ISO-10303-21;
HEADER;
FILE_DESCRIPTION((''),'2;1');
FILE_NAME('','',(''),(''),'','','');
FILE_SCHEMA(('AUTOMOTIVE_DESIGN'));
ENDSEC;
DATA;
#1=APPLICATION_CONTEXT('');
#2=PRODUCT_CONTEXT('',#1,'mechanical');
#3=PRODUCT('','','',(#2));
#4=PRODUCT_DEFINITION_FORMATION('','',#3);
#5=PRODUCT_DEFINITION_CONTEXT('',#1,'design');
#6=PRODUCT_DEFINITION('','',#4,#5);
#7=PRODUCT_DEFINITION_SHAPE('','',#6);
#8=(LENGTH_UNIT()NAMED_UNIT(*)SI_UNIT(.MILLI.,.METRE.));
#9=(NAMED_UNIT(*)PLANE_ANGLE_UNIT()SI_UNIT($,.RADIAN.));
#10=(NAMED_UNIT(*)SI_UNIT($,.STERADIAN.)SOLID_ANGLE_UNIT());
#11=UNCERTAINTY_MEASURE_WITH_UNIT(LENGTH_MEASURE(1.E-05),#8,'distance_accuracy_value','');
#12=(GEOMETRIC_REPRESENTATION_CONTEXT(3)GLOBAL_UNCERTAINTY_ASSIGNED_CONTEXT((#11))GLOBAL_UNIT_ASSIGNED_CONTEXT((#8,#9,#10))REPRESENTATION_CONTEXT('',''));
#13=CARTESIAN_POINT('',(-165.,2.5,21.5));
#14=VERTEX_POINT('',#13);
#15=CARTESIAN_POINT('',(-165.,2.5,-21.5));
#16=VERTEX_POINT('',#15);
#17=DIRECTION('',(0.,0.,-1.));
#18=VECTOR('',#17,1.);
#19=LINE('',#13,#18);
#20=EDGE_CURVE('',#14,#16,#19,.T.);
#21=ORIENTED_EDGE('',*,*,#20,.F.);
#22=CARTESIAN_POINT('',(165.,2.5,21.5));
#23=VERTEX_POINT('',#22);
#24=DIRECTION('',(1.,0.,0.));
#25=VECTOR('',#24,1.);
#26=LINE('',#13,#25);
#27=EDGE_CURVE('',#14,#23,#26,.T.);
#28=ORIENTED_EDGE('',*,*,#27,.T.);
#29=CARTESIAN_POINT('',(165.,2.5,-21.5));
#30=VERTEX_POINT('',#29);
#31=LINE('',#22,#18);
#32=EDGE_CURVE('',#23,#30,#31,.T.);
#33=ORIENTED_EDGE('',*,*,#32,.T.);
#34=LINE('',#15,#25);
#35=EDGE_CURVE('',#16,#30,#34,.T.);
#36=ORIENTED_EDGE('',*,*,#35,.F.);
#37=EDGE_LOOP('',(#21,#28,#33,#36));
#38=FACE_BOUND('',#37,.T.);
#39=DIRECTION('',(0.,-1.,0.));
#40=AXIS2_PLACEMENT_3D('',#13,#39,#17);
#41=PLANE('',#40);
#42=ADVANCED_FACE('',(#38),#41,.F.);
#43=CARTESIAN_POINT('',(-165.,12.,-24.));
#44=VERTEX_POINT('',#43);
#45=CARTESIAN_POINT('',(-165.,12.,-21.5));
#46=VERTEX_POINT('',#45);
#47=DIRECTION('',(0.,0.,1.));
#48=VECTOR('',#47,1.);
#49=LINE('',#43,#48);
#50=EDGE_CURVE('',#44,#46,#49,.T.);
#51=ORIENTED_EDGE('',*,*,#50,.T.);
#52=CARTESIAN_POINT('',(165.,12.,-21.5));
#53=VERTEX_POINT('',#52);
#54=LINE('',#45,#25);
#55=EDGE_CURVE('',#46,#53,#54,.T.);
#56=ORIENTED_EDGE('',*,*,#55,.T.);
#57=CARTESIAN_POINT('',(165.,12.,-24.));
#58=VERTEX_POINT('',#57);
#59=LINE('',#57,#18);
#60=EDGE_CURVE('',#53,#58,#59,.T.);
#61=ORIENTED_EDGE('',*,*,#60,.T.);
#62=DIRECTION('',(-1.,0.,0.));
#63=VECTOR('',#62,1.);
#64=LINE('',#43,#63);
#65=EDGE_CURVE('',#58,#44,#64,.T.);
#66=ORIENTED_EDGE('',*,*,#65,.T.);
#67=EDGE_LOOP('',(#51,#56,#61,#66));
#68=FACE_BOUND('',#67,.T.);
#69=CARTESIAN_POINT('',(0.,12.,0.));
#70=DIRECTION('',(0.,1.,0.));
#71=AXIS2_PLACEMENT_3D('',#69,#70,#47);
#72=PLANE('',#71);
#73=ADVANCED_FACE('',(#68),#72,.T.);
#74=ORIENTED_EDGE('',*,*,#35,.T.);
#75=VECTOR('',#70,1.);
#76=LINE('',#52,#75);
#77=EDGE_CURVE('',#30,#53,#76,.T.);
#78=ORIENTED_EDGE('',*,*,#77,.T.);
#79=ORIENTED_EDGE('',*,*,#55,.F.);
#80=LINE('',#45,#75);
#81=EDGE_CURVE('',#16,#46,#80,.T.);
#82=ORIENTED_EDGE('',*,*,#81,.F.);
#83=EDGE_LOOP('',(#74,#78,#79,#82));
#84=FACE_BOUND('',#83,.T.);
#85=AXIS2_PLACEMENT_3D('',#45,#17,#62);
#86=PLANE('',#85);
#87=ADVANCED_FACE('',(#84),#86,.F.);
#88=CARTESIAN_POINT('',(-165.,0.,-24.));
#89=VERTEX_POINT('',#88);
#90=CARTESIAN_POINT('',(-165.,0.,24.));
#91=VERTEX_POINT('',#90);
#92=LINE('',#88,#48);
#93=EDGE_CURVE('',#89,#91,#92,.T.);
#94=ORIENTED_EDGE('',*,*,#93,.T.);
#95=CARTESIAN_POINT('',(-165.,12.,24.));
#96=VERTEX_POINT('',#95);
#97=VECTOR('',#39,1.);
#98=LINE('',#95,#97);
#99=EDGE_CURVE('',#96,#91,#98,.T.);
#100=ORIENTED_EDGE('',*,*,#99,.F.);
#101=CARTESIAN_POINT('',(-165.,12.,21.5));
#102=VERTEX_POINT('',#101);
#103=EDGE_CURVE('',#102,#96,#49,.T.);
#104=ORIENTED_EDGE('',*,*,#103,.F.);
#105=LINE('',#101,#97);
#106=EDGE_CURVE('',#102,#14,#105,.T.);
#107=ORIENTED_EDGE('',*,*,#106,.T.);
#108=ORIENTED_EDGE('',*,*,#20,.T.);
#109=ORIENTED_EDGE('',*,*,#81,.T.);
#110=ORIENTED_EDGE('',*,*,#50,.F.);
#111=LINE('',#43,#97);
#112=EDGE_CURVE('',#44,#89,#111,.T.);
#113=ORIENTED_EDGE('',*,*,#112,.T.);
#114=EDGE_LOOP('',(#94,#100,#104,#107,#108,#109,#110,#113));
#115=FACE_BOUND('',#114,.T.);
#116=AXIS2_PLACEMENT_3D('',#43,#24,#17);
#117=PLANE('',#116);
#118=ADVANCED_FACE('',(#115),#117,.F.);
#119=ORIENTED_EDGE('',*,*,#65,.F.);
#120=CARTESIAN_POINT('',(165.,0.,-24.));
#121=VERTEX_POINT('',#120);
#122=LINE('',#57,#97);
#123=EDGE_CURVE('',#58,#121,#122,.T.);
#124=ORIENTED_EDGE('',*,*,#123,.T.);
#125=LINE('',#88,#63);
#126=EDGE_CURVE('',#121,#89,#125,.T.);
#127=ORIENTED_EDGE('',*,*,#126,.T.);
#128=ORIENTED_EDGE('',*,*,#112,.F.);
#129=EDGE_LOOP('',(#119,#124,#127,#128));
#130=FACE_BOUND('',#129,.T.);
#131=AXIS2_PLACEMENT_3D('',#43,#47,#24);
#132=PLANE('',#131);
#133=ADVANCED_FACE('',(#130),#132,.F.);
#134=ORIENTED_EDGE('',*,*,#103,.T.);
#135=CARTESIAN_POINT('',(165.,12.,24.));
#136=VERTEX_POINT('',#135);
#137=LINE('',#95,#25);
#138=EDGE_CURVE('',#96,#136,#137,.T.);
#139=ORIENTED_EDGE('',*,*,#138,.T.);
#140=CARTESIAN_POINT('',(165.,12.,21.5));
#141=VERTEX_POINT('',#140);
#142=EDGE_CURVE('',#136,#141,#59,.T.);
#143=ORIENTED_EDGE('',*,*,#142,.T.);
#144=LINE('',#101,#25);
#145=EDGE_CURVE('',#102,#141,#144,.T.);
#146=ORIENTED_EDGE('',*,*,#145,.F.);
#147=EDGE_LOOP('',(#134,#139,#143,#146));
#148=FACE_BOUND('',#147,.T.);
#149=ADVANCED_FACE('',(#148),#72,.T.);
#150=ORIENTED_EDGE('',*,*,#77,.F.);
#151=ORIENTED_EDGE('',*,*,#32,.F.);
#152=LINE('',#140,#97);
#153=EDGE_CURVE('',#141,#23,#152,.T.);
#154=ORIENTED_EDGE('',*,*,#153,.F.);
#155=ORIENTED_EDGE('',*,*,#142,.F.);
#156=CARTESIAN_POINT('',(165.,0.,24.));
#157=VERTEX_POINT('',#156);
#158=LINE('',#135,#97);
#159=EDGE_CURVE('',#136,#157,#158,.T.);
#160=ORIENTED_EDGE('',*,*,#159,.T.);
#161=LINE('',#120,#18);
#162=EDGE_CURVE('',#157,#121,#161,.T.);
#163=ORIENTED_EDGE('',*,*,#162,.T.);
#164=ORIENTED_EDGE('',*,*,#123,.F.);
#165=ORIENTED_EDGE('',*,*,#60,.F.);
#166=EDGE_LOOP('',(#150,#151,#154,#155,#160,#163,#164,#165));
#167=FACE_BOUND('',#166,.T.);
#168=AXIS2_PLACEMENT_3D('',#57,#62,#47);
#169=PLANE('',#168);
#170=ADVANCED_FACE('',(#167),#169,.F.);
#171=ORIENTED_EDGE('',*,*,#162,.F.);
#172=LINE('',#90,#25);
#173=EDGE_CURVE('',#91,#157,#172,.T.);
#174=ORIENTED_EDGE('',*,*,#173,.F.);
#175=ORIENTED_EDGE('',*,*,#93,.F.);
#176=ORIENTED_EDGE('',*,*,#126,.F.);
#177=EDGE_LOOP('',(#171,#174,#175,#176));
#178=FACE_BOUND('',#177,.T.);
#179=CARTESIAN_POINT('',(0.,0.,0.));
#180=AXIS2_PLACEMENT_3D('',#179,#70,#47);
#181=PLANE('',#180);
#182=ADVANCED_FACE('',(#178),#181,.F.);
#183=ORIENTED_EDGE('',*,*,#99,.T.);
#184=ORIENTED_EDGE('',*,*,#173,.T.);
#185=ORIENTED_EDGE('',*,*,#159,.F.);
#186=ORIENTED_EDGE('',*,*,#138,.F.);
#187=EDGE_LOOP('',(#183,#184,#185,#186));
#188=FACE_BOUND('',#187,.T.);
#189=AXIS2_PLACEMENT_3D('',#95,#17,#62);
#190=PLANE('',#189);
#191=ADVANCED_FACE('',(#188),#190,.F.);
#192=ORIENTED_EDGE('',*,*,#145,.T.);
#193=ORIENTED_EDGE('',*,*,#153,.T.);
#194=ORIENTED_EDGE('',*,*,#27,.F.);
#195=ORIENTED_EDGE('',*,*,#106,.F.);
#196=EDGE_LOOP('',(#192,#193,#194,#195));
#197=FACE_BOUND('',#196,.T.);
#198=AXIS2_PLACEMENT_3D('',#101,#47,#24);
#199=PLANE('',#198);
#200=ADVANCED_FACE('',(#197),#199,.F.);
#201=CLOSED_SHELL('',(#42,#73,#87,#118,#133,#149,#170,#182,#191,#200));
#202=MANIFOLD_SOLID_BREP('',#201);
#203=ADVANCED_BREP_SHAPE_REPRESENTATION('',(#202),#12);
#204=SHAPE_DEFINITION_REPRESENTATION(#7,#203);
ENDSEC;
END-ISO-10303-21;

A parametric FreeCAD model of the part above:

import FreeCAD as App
import Part
import Sketcher

V = App.Vector
Q = App.Units.Quantity


def add_polygon(sketch, points):
    """Adds a closed chain of lines whose ends are joined by coincident constraints."""
    first, n = sketch.GeometryCount, len(points)
    for a, b in zip(points, points[1:] + points[:1]):
        sketch.addGeometry(Part.LineSegment(App.Vector(*a, 0), App.Vector(*b, 0)), False)
    for i in range(n):
        sketch.addConstraint(Sketcher.Constraint("Coincident", first + i, 2, first + (i + 1) % n, 1))

doc = App.newDocument("Part")
body = doc.addObject("PartDesign::Body", "Body")

# Sketch on XZ plane
sketch1 = doc.addObject("Sketcher::SketchObject", "Sketch")
body.addObject(sketch1)
sketch1.AttachmentSupport = (doc.XZ_Plane, [""])
sketch1.MapMode = "FlatFace"
add_polygon(sketch1, [(-165, -24), (-165, 24), (165, 24), (165, -24)])  # lines 0-3
sketch1.addConstraint([
    Sketcher.Constraint("Vertical", 0),
    Sketcher.Constraint("Horizontal", 1),
    Sketcher.Constraint("Vertical", 2),
    Sketcher.Constraint("Horizontal", 3),
    Sketcher.Constraint("Symmetric", 0, 2, 2, 2, -1, 1),
    Sketcher.Constraint("DistanceX", 1, 1, 1, 2, Q("330 mm")),
    Sketcher.Constraint("DistanceY", 0, 1, 0, 2, Q("48 mm")),
])
pad1 = doc.addObject("PartDesign::Pad", "Pad")
body.addObject(pad1)
pad1.Profile = sketch1
pad1.Length = 12
pad1.Reversed = True

# Sketch on YZ plane
sketch2 = doc.addObject("Sketcher::SketchObject", "Sketch001")
body.addObject(sketch2)
sketch2.AttachmentSupport = (doc.YZ_Plane, [""])
sketch2.MapMode = "FlatFace"
add_polygon(sketch2, [(12, 21.5), (2.5, 21.5), (2.5, -21.5), (12, -21.5)])  # lines 0-3
sketch2.addConstraint([
    Sketcher.Constraint("Horizontal", 0),
    Sketcher.Constraint("Vertical", 1),
    Sketcher.Constraint("Horizontal", 2),
    Sketcher.Constraint("Vertical", 3),
    Sketcher.Constraint("DistanceY", 1, 2, 1, 1, Q("43 mm")),
    Sketcher.Constraint("DistanceX", 0, 2, 0, 1, Q("9.5 mm")),
    Sketcher.Constraint("DistanceX", -1, 1, 2, 2, Q("12 mm")),
    Sketcher.Constraint("DistanceY", -1, 1, 0, 2, Q("21.5 mm")),
])
pocket1 = doc.addObject("PartDesign::Pocket", "Pocket")
body.addObject(pocket1)
pocket1.Profile = sketch2
pocket1.Type = "ThroughAll"
pocket1.Midplane = True

doc.recompute()
